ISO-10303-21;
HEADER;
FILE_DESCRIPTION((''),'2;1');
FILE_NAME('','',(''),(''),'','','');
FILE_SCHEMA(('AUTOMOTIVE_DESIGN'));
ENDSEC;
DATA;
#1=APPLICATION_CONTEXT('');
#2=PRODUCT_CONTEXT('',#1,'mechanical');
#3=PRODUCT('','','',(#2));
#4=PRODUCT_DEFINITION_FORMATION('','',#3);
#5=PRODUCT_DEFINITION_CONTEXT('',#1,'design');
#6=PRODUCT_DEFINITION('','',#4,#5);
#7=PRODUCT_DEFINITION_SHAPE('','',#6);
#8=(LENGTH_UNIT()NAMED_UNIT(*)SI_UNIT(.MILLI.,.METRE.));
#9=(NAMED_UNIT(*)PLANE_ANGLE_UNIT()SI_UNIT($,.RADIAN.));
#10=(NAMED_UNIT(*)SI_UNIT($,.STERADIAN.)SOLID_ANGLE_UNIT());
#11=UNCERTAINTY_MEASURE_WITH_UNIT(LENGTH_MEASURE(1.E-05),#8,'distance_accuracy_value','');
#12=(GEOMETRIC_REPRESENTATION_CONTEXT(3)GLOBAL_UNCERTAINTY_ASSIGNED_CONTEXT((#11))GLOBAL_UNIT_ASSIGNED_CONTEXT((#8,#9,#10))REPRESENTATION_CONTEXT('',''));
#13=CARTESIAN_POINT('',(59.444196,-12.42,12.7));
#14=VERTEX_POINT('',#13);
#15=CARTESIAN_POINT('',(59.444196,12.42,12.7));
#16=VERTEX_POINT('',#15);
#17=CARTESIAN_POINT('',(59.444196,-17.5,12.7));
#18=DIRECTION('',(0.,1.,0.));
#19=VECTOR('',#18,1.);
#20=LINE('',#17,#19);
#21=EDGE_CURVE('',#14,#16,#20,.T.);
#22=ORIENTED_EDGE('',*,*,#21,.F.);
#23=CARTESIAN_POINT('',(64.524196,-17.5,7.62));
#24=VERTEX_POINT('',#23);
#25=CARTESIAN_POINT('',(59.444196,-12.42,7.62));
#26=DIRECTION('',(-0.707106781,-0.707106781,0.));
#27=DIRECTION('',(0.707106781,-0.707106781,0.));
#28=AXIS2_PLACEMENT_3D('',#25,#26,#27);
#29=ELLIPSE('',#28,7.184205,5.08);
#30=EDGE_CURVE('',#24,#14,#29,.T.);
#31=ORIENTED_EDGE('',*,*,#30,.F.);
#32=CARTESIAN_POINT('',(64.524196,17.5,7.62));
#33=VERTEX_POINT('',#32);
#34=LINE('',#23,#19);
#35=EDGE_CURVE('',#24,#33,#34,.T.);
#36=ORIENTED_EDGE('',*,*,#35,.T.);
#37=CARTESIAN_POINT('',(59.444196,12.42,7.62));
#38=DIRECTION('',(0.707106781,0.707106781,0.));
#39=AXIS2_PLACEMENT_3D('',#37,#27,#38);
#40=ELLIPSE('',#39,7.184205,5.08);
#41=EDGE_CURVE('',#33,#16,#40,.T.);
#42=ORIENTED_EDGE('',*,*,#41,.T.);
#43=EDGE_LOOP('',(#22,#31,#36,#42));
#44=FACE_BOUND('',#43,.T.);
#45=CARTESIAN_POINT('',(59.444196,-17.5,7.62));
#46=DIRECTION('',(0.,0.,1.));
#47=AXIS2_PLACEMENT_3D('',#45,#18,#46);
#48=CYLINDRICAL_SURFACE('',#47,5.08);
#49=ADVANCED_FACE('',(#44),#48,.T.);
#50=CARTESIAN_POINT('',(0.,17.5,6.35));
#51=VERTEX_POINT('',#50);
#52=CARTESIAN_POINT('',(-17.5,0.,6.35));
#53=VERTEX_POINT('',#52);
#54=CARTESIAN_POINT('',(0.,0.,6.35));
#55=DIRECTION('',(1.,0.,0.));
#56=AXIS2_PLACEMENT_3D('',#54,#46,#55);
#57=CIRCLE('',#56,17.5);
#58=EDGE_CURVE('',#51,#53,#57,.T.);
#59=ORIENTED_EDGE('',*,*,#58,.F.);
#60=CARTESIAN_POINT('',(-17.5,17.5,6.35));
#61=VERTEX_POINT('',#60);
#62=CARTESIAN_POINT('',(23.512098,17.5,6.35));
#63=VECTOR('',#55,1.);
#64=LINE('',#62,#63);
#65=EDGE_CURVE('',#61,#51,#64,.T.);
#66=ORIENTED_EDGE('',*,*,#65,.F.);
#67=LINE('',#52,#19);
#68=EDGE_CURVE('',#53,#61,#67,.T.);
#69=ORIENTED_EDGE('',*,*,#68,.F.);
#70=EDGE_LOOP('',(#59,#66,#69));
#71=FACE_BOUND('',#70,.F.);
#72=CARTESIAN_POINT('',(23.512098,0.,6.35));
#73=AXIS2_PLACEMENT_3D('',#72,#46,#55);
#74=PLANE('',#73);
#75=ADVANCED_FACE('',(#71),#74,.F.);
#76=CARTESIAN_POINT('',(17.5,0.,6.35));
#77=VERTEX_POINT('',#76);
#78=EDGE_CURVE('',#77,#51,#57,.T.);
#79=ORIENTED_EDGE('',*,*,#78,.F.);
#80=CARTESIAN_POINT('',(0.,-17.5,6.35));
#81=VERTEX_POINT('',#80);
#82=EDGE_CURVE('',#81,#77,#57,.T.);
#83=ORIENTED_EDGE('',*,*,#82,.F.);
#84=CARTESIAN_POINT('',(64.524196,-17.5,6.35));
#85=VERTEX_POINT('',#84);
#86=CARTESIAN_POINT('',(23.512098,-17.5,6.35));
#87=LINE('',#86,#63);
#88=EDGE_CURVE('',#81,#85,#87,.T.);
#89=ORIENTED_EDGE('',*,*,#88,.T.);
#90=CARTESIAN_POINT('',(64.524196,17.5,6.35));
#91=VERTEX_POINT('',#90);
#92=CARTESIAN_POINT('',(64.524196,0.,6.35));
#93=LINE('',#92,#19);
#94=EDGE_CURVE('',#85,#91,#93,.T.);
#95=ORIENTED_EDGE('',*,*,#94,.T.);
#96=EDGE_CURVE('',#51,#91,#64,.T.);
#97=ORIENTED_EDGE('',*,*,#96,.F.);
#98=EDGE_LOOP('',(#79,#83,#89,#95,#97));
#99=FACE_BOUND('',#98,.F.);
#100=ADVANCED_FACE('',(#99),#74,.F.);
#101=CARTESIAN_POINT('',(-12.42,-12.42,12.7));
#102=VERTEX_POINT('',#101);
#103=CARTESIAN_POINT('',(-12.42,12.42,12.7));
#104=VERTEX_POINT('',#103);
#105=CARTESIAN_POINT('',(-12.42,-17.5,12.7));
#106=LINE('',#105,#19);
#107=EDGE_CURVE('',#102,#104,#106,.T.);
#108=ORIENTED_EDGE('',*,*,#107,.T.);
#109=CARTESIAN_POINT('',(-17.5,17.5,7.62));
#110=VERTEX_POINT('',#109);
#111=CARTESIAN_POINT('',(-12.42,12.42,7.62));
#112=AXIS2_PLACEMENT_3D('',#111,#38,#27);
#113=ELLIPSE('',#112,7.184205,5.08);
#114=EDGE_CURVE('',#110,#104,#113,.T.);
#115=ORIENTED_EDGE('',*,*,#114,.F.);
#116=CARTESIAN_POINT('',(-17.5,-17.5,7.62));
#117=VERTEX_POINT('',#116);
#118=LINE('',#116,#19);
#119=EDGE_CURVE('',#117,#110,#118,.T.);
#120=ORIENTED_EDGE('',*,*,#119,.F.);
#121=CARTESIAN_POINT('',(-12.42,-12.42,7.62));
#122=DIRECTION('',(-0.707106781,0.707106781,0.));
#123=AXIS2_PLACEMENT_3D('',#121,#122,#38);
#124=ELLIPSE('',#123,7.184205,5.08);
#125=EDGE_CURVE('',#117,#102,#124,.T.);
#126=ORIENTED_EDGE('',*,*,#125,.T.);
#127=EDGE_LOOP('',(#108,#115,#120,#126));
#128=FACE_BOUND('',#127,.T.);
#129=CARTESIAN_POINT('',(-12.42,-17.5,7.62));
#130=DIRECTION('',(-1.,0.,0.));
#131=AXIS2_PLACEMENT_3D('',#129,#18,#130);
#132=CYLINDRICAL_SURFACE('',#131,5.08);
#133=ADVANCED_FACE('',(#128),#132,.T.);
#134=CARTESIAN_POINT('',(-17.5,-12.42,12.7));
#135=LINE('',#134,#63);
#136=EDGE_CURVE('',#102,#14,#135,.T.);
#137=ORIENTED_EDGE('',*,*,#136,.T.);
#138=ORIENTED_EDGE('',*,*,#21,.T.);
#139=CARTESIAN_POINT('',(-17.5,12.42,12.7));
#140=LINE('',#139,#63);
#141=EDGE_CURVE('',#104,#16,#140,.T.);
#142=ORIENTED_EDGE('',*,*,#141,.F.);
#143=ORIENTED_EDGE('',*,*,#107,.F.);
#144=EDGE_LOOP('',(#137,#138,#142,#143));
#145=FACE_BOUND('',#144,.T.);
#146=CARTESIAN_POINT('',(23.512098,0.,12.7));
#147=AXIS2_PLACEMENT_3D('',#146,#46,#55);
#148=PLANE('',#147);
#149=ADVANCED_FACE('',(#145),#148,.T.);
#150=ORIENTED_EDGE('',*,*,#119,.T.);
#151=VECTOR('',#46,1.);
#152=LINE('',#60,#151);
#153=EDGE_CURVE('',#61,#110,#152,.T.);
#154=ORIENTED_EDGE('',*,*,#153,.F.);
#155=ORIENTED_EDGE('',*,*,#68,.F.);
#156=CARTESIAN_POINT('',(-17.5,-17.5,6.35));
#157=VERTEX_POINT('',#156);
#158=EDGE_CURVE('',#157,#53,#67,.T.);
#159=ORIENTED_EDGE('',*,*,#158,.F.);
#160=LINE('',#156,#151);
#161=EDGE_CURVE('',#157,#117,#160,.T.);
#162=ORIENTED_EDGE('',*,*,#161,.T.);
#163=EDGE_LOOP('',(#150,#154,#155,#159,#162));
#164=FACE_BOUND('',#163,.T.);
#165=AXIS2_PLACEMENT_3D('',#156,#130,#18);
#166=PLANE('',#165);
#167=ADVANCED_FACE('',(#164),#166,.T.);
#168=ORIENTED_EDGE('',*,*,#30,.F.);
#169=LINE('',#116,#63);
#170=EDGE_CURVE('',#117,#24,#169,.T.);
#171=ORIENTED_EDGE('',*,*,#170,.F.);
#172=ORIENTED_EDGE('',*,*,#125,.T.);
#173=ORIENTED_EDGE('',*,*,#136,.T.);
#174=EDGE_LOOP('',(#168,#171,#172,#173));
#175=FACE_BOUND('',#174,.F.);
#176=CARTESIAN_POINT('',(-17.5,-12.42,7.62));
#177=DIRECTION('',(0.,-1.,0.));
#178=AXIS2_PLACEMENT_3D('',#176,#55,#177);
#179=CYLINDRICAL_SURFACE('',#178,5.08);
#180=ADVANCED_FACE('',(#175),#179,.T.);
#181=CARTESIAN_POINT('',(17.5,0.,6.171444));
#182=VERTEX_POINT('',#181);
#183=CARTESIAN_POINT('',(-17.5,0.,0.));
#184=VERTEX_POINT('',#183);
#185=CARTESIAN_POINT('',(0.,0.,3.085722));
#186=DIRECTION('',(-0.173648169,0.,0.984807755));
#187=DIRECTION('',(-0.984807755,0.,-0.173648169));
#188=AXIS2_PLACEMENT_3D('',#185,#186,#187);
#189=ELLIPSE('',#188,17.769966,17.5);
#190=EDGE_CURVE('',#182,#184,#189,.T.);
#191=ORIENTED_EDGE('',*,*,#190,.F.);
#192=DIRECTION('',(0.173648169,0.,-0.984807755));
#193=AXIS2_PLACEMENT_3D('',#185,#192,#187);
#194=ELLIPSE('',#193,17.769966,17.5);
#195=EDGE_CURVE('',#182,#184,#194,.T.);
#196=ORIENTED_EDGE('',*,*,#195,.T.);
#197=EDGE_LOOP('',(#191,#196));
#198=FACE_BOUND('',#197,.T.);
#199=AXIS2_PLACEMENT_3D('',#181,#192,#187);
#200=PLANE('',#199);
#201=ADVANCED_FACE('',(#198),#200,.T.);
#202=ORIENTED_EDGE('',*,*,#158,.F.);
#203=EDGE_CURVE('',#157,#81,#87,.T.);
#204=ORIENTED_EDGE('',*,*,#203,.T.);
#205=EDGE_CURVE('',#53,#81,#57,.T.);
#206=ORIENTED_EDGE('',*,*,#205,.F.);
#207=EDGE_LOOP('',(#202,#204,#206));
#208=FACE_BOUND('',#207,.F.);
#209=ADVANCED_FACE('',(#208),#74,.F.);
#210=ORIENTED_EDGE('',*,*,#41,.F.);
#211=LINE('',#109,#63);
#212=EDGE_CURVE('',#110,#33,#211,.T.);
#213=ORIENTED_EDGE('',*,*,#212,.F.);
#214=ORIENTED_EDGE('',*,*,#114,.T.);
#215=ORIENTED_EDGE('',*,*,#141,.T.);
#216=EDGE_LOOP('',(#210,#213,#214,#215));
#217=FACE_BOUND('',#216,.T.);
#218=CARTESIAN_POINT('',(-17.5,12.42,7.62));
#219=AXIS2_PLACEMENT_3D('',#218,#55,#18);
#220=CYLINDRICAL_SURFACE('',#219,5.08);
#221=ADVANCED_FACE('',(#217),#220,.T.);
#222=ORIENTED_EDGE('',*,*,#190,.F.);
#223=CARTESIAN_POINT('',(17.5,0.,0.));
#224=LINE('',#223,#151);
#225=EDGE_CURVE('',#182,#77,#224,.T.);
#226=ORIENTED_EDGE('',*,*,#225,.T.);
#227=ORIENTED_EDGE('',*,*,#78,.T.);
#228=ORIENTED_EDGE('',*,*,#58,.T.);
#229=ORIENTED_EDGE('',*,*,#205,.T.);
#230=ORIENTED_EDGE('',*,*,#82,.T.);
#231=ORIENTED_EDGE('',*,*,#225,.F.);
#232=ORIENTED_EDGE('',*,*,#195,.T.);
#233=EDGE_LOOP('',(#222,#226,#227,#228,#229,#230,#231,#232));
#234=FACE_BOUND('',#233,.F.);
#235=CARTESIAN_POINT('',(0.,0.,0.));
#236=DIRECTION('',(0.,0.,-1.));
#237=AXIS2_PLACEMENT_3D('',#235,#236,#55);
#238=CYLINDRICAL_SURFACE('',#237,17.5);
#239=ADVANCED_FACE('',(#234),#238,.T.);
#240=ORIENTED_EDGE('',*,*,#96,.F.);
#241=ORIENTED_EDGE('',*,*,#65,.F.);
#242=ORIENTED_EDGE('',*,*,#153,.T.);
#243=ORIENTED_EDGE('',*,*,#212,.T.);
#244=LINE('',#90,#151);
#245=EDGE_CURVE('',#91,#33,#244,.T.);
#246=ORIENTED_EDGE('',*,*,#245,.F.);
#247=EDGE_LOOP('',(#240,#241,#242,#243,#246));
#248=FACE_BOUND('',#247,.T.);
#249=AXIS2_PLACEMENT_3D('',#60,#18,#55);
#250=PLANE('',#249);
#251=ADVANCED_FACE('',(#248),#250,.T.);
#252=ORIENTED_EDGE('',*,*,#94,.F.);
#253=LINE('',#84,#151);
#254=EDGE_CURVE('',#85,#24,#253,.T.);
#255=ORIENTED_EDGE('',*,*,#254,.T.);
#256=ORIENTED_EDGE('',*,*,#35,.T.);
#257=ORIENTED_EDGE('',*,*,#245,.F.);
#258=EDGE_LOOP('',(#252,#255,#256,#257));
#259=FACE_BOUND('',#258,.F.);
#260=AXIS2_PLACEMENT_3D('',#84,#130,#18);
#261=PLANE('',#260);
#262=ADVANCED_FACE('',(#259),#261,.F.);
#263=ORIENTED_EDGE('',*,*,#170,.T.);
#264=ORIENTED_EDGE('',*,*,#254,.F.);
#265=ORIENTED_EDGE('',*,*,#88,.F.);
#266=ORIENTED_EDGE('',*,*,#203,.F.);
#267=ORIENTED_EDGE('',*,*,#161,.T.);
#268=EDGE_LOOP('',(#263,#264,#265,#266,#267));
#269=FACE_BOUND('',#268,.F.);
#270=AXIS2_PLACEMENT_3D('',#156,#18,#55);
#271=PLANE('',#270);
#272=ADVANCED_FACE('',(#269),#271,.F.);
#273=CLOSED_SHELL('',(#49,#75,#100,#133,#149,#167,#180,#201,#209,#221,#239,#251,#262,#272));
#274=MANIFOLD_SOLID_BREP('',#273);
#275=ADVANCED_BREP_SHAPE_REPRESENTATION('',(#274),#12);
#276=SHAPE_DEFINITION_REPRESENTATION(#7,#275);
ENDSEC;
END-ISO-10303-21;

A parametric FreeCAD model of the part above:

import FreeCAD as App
import Part
import Sketcher
from FreeCAD import Vector
Q = App.Units.Quantity


def edges_at(feature, points):
    """Names of the edges that pass closest to the given points."""
    edges = feature.Shape.Edges
    near = lambda p: min(range(len(edges)), key=lambda i: edges[i].distToShape(Part.Vertex(*p))[0])
    return sorted({f"Edge{near(p) + 1}" for p in points})


def add_polygon(sketch, points):
    """Adds a closed chain of lines whose ends are joined by coincident constraints."""
    first, n = sketch.GeometryCount, len(points)
    for a, b in zip(points, points[1:] + points[:1]):
        sketch.addGeometry(Part.LineSegment(App.Vector(*a, 0), App.Vector(*b, 0)), False)
    for i in range(n):
        sketch.addConstraint(Sketcher.Constraint("Coincident", first + i, 2, first + (i + 1) % n, 1))

doc = App.newDocument("Part")
body = doc.addObject("PartDesign::Body", "Body")

sketch1 = body.newObject("Sketcher::SketchObject", "Sketch")
sketch1.AttachmentSupport = (doc.getObject("XY_Plane"), [""])
sketch1.MapMode = "FlatFace"
sketch1.addGeometry(Part.Circle(Vector(0, 0, 0), Vector(0, 0, 1), 17.5), False)
sketch1.addConstraint([
    Sketcher.Constraint("Coincident", 0, 3, -1, 1),
    Sketcher.Constraint("Diameter", 0, Q("35 mm")),
])
pad1 = body.newObject("PartDesign::Pad", "Pad")
pad1.Profile = sketch1
pad1.Length = Q("0.25 in")

sketch2 = body.newObject("Sketcher::SketchObject", "Sketch001")
sketch2.AttachmentSupport = (doc.getObject("XZ_Plane"), [""])
sketch2.MapMode = "FlatFace"
add_polygon(sketch2, [(-17.5, 0), (17.5, 0), (17.5, 6.171444)])
sketch2.addConstraint([
    Sketcher.Constraint("Horizontal", 0),
    Sketcher.Constraint("Vertical", 1),
    Sketcher.Constraint("Symmetric", 0, 2, 2, 2, -1, 1),
    Sketcher.Constraint("Angle", 2, Q("-170.000001 deg")),
    Sketcher.Constraint("DistanceX", 0, 1, 0, 2, Q("35 mm")),
])
pocket1 = body.newObject("PartDesign::Pocket", "Pocket")
pocket1.Profile = sketch2
pocket1.Type = "ThroughAll"
pocket1.Midplane = True

sketch3 = body.newObject("Sketcher::SketchObject", "Sketch002")
sketch3.AttachmentSupport = (doc.getObject("XY_Plane"), [""])
sketch3.MapMode = "FlatFace"
sketch3.AttachmentOffset = App.Placement(Vector(0, 0, 0.25 * 25.4), App.Rotation())
add_polygon(sketch3, [(-17.5, 17.5), (-17.5, -17.5), (64.524196, -17.5), (64.524196, 17.5)])
sketch3.addConstraint([
    Sketcher.Constraint("Vertical", 0),
    Sketcher.Constraint("Horizontal", 1),
    Sketcher.Constraint("Vertical", 2),
    Sketcher.Constraint("Horizontal", 3),
    Sketcher.Constraint("DistanceY", 0, 2, 0, 1, Q("35 mm")),
    Sketcher.Constraint("DistanceX", 0, 2, -1, 1, Q("17.5 mm")),
    Sketcher.Constraint("DistanceY", 0, 2, -1, 1, Q("17.5 mm")),
    Sketcher.Constraint("DistanceX", 1, 1, 1, 2, Q("82.024196 mm")),
])
pad2 = body.newObject("PartDesign::Pad", "Pad001")
pad2.Profile = sketch3
pad2.Length = Q("0.25 in")
doc.recompute()

fillet = body.newObject("PartDesign::Fillet", "Fillet")
fillet.Base = (pad2, edges_at(pad2, [
    (23.512, 17.5, 12.7),
    (-17.5, 0, 12.7),
    (23.512, -17.5, 12.7),
    (64.524, 0, 12.7),
]))
fillet.Radius = Q("0.2 in")

doc.recompute()
